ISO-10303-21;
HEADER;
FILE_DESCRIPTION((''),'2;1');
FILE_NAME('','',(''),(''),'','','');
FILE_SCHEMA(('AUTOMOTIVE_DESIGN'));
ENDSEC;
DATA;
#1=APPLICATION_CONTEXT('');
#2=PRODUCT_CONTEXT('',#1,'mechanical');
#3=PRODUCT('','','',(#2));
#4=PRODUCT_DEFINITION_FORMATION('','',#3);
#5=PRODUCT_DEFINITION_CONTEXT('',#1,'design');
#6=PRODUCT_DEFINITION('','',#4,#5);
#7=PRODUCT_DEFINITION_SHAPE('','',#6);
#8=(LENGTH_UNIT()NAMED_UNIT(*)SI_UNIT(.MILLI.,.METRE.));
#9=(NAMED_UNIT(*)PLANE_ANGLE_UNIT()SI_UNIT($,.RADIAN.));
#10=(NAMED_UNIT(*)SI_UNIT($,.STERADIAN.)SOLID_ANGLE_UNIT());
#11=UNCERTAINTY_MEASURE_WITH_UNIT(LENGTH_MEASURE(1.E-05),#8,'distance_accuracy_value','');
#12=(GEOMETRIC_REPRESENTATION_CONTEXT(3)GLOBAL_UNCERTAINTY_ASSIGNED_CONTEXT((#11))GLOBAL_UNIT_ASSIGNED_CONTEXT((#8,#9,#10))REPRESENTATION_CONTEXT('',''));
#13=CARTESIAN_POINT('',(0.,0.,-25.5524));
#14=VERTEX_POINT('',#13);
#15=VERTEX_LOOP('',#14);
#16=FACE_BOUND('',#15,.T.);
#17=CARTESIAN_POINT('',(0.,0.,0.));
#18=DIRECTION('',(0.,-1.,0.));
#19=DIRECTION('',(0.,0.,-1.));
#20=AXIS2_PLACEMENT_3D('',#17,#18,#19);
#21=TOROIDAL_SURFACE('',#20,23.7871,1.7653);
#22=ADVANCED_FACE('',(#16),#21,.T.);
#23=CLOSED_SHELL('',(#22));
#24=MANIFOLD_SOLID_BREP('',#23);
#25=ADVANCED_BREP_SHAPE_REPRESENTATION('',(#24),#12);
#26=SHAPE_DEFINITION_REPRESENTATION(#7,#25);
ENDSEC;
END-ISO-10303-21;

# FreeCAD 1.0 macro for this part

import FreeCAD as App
import Part
import Sketcher

V = App.Vector
Q = App.Units.Quantity

doc = App.newDocument("Part")
body = doc.addObject("PartDesign::Body", "Body")

sketch1 = body.newObject("Sketcher::SketchObject", "Sketch")
sketch1.AttachmentSupport = (doc.getObject("XY_Plane"), [""])
sketch1.MapMode = "FlatFace"
sketch1.addGeometry(Part.Circle(V(-23.8, 0, 0), V(0, 0, 1), 1.8), False)
sketch1.addConstraint(Sketcher.Constraint("PointOnObject", 0, 3, -1))
sketch1.addConstraint(Sketcher.Constraint("Diameter", 0, Q("0.139 in")))
sketch1.addConstraint(Sketcher.Constraint("DistanceX", 0, 3, -1, 1, Q("0.9365 in")))

sketch2 = body.newObject("Sketcher::SketchObject", "Sketch001")
sketch2.AttachmentSupport = (doc.getObject("XZ_Plane"), [""])
sketch2.MapMode = "FlatFace"
sketch2.addGeometry(Part.Circle(V(0, 0, 0), V(0, 0, 1), 22), False)
sketch2.addConstraint(Sketcher.Constraint("Coincident", 0, 3, -1, 1))
sketch2.addConstraint(Sketcher.Constraint("Diameter", 0, Q("1.734 in")))
doc.recompute()

additivepipe = body.newObject("PartDesign::AdditivePipe", "AdditivePipe")
additivepipe.Profile = sketch1
additivepipe.Spine = (sketch2, ["Edge1"])

doc.recompute()
